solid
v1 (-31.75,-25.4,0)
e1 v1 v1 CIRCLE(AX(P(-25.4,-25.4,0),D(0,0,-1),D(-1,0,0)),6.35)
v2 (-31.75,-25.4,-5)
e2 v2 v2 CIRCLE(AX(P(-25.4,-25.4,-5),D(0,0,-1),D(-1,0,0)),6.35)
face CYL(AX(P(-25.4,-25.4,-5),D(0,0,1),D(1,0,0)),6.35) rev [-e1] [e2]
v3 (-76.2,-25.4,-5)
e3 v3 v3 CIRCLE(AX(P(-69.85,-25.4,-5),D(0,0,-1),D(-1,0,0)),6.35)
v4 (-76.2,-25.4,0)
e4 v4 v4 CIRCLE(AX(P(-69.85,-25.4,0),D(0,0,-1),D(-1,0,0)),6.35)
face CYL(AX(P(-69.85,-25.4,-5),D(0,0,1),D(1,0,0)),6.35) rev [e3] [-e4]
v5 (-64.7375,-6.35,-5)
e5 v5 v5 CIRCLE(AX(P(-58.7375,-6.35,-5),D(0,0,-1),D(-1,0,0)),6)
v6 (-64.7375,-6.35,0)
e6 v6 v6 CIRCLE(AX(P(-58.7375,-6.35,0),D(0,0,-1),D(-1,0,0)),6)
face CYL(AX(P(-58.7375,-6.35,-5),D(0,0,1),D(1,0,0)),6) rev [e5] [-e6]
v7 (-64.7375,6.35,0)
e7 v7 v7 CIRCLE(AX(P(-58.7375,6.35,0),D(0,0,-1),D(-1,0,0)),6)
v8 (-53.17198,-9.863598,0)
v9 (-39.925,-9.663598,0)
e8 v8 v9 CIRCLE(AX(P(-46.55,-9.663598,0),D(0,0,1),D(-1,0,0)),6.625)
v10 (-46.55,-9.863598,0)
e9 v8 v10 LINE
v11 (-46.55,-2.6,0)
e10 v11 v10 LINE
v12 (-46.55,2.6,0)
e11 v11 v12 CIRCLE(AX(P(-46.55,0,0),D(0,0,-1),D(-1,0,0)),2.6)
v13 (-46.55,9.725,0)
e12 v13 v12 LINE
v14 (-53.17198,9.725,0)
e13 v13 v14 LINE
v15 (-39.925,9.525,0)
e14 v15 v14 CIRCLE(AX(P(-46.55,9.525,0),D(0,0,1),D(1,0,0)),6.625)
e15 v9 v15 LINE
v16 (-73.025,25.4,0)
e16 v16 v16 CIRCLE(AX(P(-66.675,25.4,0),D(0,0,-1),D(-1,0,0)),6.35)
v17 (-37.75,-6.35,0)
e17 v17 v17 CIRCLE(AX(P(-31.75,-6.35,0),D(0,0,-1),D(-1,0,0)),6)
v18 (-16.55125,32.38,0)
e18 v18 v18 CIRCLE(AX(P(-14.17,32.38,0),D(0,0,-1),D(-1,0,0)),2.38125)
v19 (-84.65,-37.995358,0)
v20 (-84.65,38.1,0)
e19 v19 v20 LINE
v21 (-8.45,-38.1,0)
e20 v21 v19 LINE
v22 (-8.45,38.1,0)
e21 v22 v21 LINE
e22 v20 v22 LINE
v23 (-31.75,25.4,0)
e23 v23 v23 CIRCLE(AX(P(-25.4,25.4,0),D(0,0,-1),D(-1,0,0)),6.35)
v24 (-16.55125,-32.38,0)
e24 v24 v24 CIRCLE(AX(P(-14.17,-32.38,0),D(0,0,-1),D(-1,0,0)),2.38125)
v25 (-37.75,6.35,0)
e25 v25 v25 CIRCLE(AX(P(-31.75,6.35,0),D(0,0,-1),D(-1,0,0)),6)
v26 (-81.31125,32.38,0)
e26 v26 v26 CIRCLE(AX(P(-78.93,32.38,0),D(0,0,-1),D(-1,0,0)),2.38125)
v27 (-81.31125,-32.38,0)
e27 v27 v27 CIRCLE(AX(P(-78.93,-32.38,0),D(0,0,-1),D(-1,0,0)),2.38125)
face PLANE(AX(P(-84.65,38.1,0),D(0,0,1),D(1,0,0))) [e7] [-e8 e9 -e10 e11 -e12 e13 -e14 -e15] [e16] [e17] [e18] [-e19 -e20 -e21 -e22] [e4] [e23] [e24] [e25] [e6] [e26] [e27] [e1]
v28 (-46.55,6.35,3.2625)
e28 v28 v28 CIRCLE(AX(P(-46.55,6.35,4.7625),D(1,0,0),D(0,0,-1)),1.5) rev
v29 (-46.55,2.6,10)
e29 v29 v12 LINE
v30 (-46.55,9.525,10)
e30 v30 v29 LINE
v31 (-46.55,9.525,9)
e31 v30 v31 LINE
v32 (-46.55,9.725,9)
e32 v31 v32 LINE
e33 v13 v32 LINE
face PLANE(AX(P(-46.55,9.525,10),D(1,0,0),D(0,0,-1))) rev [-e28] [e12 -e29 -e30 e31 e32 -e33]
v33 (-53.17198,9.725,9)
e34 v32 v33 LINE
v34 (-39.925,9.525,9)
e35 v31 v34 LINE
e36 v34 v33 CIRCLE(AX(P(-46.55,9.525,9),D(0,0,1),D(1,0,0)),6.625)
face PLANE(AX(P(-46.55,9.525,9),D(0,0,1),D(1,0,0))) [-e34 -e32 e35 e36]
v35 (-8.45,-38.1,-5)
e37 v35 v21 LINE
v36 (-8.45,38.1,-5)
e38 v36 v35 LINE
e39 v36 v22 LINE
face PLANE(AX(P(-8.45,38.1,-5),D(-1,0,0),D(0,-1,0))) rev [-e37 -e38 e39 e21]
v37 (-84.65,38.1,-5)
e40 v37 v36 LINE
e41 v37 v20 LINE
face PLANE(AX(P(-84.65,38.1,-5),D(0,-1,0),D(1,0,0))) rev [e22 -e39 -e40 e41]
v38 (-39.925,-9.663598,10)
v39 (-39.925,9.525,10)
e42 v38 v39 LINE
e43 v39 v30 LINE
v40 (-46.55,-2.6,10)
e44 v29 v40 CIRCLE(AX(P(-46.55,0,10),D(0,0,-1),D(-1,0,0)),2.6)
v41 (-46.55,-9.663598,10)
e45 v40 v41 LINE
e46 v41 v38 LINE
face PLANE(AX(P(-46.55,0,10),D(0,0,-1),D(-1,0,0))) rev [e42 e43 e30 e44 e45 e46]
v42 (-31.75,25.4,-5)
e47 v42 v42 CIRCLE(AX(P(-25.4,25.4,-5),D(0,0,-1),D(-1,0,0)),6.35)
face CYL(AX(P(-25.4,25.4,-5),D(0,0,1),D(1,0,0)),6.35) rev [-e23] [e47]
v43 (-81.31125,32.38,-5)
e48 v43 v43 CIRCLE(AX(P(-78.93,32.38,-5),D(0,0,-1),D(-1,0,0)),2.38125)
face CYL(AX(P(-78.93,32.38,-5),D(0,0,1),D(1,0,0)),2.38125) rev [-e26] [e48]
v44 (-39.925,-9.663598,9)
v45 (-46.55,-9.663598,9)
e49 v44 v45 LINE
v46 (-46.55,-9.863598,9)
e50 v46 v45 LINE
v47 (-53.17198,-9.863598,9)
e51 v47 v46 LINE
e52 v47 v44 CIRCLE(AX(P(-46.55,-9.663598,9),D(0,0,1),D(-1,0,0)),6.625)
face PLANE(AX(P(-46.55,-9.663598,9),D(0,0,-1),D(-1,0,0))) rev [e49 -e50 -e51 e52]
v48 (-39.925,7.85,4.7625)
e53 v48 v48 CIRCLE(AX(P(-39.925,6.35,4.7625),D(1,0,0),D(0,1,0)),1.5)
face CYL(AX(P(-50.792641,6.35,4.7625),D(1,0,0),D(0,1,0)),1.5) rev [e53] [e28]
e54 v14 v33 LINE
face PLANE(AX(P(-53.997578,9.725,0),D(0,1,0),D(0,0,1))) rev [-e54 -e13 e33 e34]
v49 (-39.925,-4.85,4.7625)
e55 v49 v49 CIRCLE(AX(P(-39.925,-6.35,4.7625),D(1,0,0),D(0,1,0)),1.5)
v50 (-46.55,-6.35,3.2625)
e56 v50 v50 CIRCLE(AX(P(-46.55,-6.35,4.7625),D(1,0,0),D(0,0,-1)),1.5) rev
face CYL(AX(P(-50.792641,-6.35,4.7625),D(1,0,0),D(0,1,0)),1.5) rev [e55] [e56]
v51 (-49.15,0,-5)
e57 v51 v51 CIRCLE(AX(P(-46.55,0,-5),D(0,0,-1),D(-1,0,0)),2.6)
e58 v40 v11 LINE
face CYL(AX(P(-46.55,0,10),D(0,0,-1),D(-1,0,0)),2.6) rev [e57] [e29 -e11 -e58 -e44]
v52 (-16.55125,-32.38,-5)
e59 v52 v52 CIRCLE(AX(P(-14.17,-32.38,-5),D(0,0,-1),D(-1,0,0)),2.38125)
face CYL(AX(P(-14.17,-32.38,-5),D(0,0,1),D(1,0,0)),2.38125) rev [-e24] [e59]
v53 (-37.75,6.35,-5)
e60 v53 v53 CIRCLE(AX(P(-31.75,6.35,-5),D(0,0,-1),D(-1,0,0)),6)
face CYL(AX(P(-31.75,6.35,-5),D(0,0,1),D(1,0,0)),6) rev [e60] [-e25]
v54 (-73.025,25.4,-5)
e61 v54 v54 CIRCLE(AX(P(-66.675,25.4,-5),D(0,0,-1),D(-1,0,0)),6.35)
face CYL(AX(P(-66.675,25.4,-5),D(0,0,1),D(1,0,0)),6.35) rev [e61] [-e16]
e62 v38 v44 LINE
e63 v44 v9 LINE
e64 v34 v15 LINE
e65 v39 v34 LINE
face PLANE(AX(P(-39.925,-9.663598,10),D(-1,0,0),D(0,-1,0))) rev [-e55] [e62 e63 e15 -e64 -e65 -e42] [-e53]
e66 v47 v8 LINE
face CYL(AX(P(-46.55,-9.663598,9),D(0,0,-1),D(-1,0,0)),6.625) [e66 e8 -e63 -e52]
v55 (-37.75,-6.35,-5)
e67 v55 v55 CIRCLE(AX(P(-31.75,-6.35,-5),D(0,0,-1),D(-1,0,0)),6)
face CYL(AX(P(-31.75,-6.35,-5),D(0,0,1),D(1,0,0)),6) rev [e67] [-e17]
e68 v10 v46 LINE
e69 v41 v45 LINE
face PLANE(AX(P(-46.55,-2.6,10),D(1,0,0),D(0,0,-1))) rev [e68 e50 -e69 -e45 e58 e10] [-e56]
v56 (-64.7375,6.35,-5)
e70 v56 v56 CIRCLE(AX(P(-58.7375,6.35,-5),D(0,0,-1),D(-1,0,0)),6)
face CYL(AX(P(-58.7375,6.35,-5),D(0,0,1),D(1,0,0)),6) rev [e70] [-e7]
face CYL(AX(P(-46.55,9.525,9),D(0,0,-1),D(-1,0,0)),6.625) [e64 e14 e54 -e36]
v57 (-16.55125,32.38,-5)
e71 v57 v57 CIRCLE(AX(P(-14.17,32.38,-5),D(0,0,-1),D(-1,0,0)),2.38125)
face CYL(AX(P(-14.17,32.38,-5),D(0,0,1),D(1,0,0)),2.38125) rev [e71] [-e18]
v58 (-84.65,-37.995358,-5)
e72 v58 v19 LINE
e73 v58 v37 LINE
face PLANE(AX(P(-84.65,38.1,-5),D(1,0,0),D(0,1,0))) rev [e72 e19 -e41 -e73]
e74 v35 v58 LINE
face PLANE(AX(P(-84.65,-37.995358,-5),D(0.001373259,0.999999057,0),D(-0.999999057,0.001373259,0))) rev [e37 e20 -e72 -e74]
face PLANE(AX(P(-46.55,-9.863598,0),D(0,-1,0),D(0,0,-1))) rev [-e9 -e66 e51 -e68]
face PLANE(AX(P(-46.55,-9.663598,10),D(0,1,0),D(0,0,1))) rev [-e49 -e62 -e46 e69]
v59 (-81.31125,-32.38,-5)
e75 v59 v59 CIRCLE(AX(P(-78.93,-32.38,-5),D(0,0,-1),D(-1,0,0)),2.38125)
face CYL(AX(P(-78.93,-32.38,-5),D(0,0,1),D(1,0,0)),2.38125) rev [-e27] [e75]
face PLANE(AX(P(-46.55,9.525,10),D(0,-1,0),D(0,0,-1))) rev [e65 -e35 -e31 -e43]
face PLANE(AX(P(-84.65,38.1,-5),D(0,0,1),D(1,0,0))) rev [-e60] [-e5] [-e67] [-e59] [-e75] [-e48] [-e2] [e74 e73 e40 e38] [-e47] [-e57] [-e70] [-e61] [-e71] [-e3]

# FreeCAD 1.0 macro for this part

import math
import FreeCAD as App
import Part
import Sketcher
from FreeCAD import Vector

doc = App.newDocument("Part")
body = doc.addObject("PartDesign::Body", "Body")

# Sketch on XY plane
sketch1 = body.newObject("Sketcher::SketchObject", "Sketch")
sketch1.AttachmentSupport = (doc.getObject("XY_Plane"), [""])
sketch1.MapMode = "FlatFace"
sketch1.addGeometry([
    Part.LineSegment(Vector(-46.5, -2.6, 0), Vector(-46.5, -9.7, 0)),  # 0
    Part.LineSegment(Vector(-46.5, -9.7, 0), Vector(-39.9, -9.7, 0)),  # 1
    Part.LineSegment(Vector(-39.9, -9.7, 0), Vector(-39.9, 9.5, 0)),  # 2
    Part.LineSegment(Vector(-39.9, 9.5, 0), Vector(-46.5, 9.5, 0)),  # 3
    Part.LineSegment(Vector(-46.5, 9.5, 0), Vector(-46.5, 2.6, 0)),  # 4
    Part.ArcOfCircle(Part.Circle(Vector(-46.5, 0, 0), Vector(0, 0, 1), 2.6), math.radians(-90), math.radians(90)),  # 5
], False)
sketch1.addConstraint([
    Sketcher.Constraint("Coincident", 0, 2, 1, 1),
    Sketcher.Constraint("Coincident", 1, 2, 2, 1),
    Sketcher.Constraint("Coincident", 2, 2, 3, 1),
    Sketcher.Constraint("Coincident", 3, 2, 4, 1),
    Sketcher.Constraint("Coincident", 4, 2, 5, 2),
    Sketcher.Constraint("Coincident", 5, 1, 0, 1),
    Sketcher.Constraint("Vertical", 0),
    Sketcher.Constraint("Horizontal", 1),
    Sketcher.Constraint("Vertical", 2),
    Sketcher.Constraint("Horizontal", 3),
    Sketcher.Constraint("Vertical", 4),
    Sketcher.Constraint("Symmetric", 4, 2, 5, 1, -1),
    Sketcher.Constraint("Vertical", 5, 3, 0, 2),
    Sketcher.Constraint("Radius", 5, 2.6),
    Sketcher.Constraint("DistanceX", 1, 1, 1, 2, 6.625),
    Sketcher.Constraint("DistanceY", 4, 2, 4, 1, 6.925),
    Sketcher.Constraint("DistanceX", 5, 3, -1, 1, 46.55),
    Sketcher.Constraint("DistanceY", 0, 2, 0, 1, 7.063598),
])
pad1 = body.newObject("PartDesign::Pad", "Pad")
pad1.Profile = sketch1
pad1.Length = 10

# Sketch on YZ plane
sketch2 = body.newObject("Sketcher::SketchObject", "Sketch001")
sketch2.AttachmentSupport = (doc.getObject("YZ_Plane"), [""])
sketch2.MapMode = "FlatFace"
sketch2.AttachmentOffset = App.Placement(Vector(0, 0, -39.925), App.Rotation())
sketch2.addGeometry([
    Part.Circle(Vector(6.3, 4.8, 0), Vector(0, 0, 1), 1.5),
    Part.Circle(Vector(-6.3, 4.8, 0), Vector(0, 0, 1), 1.5),
], False)
sketch2.addConstraint([
    Sketcher.Constraint("Equal", 0, 1),
    Sketcher.Constraint("Symmetric", 0, 3, 1, 3, -2),
    Sketcher.Constraint("Diameter", 0, 3.0),
    Sketcher.Constraint("DistanceX", 1, 3, 0, 3, 12.7),
    Sketcher.Constraint("DistanceY", -1, 1, 0, 3, 4.7625),
])
pocket1 = body.newObject("PartDesign::Pocket", "Pocket")
pocket1.Profile = sketch2
pocket1.Length = 6.625

# Sketch on XY plane
sketch3 = body.newObject("Sketcher::SketchObject", "Sketch002")
sketch3.AttachmentSupport = (doc.getObject("XY_Plane"), [""])
sketch3.MapMode = "FlatFace"
sketch3.addGeometry([
    Part.LineSegment(Vector(-84.7, 38.1, 0), Vector(-8.4, 38.1, 0)),  # 0
    Part.LineSegment(Vector(-8.4, 38.1, 0), Vector(-8.4, -38.1, 0)),  # 1
    Part.LineSegment(Vector(-8.4, -38.1, 0), Vector(-84.7, -38, 0)),  # 2
    Part.LineSegment(Vector(-84.7, -38, 0), Vector(-84.7, 38.1, 0)),  # 3
    Part.Circle(Vector(-14.2, -32.4, 0), Vector(0, 0, 1), 2.4),  # 4
    Part.Circle(Vector(-25.4, -25.4, 0), Vector(0, 0, 1), 6.3),  # 5
    Part.Circle(Vector(-31.8, -6.3, 0), Vector(0, 0, 1), 6),  # 6
    Part.Circle(Vector(-78.9, -32.4, 0), Vector(0, 0, 1), 2.4),  # 7
    Part.Circle(Vector(-69.8, -25.4, 0), Vector(0, 0, 1), 6.3),  # 8
    Part.Circle(Vector(-58.7, -6.3, 0), Vector(0, 0, 1), 6),  # 9
    Part.Circle(Vector(-31.8, 6.3, 0), Vector(0, 0, 1), 6),  # 10
    Part.Circle(Vector(-46.5, 0, 0), Vector(0, 0, 1), 2.6),  # 11
    Part.Circle(Vector(-25.4, 25.4, 0), Vector(0, 0, 1), 6.3),  # 12
    Part.Circle(Vector(-14.2, 32.4, 0), Vector(0, 0, 1), 2.4),  # 13
    Part.Circle(Vector(-58.7, 6.3, 0), Vector(0, 0, 1), 6),  # 14
    Part.Circle(Vector(-66.7, 25.4, 0), Vector(0, 0, 1), 6.3),  # 15
    Part.Circle(Vector(-78.9, 32.4, 0), Vector(0, 0, 1), 2.4),  # 16
], False)
sketch3.addConstraint([
    Sketcher.Constraint("Coincident", 0, 2, 1, 1),
    Sketcher.Constraint("Coincident", 1, 2, 2, 1),
    Sketcher.Constraint("Coincident", 2, 2, 3, 1),
    Sketcher.Constraint("Coincident", 3, 2, 0, 1),
    Sketcher.Constraint("Horizontal", 0),
    Sketcher.Constraint("Vertical", 1),
    Sketcher.Constraint("Vertical", 3),
    Sketcher.Constraint("Equal", 4, 7),
    Sketcher.Constraint("Equal", 5, 8),
    Sketcher.Constraint("Equal", 6, 9),
    Sketcher.Constraint("Equal", 9, 10),
    Sketcher.Constraint("Equal", 8, 12),
    Sketcher.Constraint("Equal", 7, 13),
    Sketcher.Constraint("Equal", 10, 14),
    Sketcher.Constraint("Equal", 12, 15),
    Sketcher.Constraint("Equal", 13, 16),
    Sketcher.Constraint("Symmetric", 6, 3, 10, 3, -1),
    Sketcher.Constraint("Symmetric", 5, 3, 12, 3, -1),
    Sketcher.Constraint("Symmetric", 4, 3, 13, 3, -1),
    Sketcher.Constraint("Symmetric", 9, 3, 14, 3, -1),
    Sketcher.Constraint("Symmetric", 7, 3, 16, 3, -1),
    Sketcher.Constraint("PointOnObject", 11, 3, -1),
    Sketcher.Constraint("Horizontal", 4, 3, 7, 3),
    Sketcher.Constraint("Horizontal", 5, 3, 8, 3),
    Sketcher.Constraint("Horizontal", 6, 3, 9, 3),
    Sketcher.Constraint("Horizontal", 12, 3, 15, 3),
    Sketcher.Constraint("Equal", 0, 1),
    Sketcher.Constraint("Diameter", 6, 12.0),
    Sketcher.Constraint("Diameter", 5, 12.7),
    Sketcher.Constraint("Diameter", 11, 5.2),
    Sketcher.Constraint("DistanceX", 0, 1, 0, 2, 76.2),
    Sketcher.Constraint("Diameter", 4, 4.7625),
    Sketcher.Constraint("DistanceX", 5, 3, -1, 1, 25.4),
    Sketcher.Constraint("DistanceY", 5, 3, -1, 1, 25.4),
    Sketcher.Constraint("DistanceY", -1, 1, 0, 2, 38.1),
    Sketcher.Constraint("DistanceX", 8, 3, 6, 3, 38.1),
    Sketcher.Constraint("DistanceY", 6, 3, 10, 3, 12.7),
    Sketcher.Constraint("DistanceX", 11, 3, 6, 3, 14.8),
    Sketcher.Constraint("DistanceX", 10, 3, 0, 2, 23.3),
    Sketcher.Constraint("DistanceX", 4, 3, -1, 1, 14.17),
    Sketcher.Constraint("DistanceY", 4, 3, -1, 1, 32.38),
    Sketcher.Constraint("DistanceX", 6, 3, -1, 1, 31.75),
    Sketcher.Constraint("DistanceX", 7, 3, -1, 1, 78.93),
    Sketcher.Constraint("DistanceX", 15, 3, -1, 1, 66.675),
    Sketcher.Constraint("DistanceX", 9, 3, -1, 1, 58.7375),
    Sketcher.Constraint("DistanceY", 3, 1, 3, 2, 76.095358),
])
pad2 = body.newObject("PartDesign::Pad", "Pad001")
pad2.Profile = sketch3
pad2.Length = 5
pad2.Reversed = True

# Sketch on XY plane
sketch4 = body.newObject("Sketcher::SketchObject", "Sketch003")
sketch4.AttachmentSupport = (doc.getObject("XY_Plane"), [""])
sketch4.MapMode = "FlatFace"
sketch4.addGeometry([
    Part.LineSegment(Vector(-40, -10, 0), Vector(-53, -10, 0)),
    Part.ArcOfCircle(Part.Circle(Vector(-47, -10, 0), Vector(0, 0, 1), 7), math.radians(180), math.radians(360)),
    Part.LineSegment(Vector(-53, 10, 0), Vector(-40, 10, 0)),
    Part.ArcOfCircle(Part.Circle(Vector(-47, 10, 0), Vector(0, 0, 1), 7), math.radians(0), math.radians(180)),
], False)
sketch4.addConstraint([
    Sketcher.Constraint("Coincident", 0, 1, 1, 2),
    Sketcher.Constraint("Coincident", 1, 1, 0, 2),
    Sketcher.Constraint("Coincident", 2, 1, 3, 2),
    Sketcher.Constraint("Coincident", 3, 1, 2, 2),
    Sketcher.Constraint("Horizontal", 0),
    Sketcher.Constraint("Horizontal", 2),
    Sketcher.Constraint("Equal", 1, 3),
    Sketcher.Constraint("Horizontal", 1, 3, 0, 1),
    Sketcher.Constraint("Horizontal", 3, 3, 2, 1),
    Sketcher.Constraint("Vertical", 1, 3, 3, 3),
    Sketcher.Constraint("Radius", 1, 6.625),
    Sketcher.Constraint("DistanceX", 1, 3, -1, 1, 46.55),
    Sketcher.Constraint("DistanceY", -1, 1, 3, 3, 9.525),
    Sketcher.Constraint("DistanceY", 1, 3, -1, 1, 9.663598),
])
pad3 = body.newObject("PartDesign::Pad", "Pad002")
pad3.Profile = sketch4
pad3.Length = 9

# Sketch on XY plane
sketch5 = body.newObject("Sketcher::SketchObject", "Sketch004")
sketch5.AttachmentSupport = (doc.getObject("XY_Plane"), [""])
sketch5.MapMode = "FlatFace"
sketch5.AttachmentOffset = App.Placement(Vector(0, 0, 9), App.Rotation())
sketch5.addGeometry([
    Part.LineSegment(Vector(-47, 10, 0), Vector(-54, 10, 0)),
    Part.LineSegment(Vector(-54, 10, 0), Vector(-54, -10, 0)),
    Part.LineSegment(Vector(-54, -10, 0), Vector(-47, -10, 0)),
    Part.LineSegment(Vector(-47, -10, 0), Vector(-47, 10, 0)),
], False)
sketch5.addConstraint([
    Sketcher.Constraint("Coincident", 0, 2, 1, 1),
    Sketcher.Constraint("Coincident", 1, 2, 2, 1),
    Sketcher.Constraint("Coincident", 2, 2, 3, 1),
    Sketcher.Constraint("Coincident", 3, 2, 0, 1),
    Sketcher.Constraint("Horizontal", 0),
    Sketcher.Constraint("Vertical", 1),
    Sketcher.Constraint("Horizontal", 2),
    Sketcher.Constraint("Vertical", 3),
    Sketcher.Constraint("DistanceX", 2, 2, -1, 1, 46.55),
    Sketcher.Constraint("DistanceY", -1, 1, 0, 2, 9.725),
    Sketcher.Constraint("DistanceX", 0, 2, 0, 1, 7.447578),
    Sketcher.Constraint("DistanceY", 1, 2, 1, 1, 19.588598),
])
pocket2 = body.newObject("PartDesign::Pocket", "Pocket001")
pocket2.Profile = sketch5
pocket2.Length = 9

doc.recompute()
